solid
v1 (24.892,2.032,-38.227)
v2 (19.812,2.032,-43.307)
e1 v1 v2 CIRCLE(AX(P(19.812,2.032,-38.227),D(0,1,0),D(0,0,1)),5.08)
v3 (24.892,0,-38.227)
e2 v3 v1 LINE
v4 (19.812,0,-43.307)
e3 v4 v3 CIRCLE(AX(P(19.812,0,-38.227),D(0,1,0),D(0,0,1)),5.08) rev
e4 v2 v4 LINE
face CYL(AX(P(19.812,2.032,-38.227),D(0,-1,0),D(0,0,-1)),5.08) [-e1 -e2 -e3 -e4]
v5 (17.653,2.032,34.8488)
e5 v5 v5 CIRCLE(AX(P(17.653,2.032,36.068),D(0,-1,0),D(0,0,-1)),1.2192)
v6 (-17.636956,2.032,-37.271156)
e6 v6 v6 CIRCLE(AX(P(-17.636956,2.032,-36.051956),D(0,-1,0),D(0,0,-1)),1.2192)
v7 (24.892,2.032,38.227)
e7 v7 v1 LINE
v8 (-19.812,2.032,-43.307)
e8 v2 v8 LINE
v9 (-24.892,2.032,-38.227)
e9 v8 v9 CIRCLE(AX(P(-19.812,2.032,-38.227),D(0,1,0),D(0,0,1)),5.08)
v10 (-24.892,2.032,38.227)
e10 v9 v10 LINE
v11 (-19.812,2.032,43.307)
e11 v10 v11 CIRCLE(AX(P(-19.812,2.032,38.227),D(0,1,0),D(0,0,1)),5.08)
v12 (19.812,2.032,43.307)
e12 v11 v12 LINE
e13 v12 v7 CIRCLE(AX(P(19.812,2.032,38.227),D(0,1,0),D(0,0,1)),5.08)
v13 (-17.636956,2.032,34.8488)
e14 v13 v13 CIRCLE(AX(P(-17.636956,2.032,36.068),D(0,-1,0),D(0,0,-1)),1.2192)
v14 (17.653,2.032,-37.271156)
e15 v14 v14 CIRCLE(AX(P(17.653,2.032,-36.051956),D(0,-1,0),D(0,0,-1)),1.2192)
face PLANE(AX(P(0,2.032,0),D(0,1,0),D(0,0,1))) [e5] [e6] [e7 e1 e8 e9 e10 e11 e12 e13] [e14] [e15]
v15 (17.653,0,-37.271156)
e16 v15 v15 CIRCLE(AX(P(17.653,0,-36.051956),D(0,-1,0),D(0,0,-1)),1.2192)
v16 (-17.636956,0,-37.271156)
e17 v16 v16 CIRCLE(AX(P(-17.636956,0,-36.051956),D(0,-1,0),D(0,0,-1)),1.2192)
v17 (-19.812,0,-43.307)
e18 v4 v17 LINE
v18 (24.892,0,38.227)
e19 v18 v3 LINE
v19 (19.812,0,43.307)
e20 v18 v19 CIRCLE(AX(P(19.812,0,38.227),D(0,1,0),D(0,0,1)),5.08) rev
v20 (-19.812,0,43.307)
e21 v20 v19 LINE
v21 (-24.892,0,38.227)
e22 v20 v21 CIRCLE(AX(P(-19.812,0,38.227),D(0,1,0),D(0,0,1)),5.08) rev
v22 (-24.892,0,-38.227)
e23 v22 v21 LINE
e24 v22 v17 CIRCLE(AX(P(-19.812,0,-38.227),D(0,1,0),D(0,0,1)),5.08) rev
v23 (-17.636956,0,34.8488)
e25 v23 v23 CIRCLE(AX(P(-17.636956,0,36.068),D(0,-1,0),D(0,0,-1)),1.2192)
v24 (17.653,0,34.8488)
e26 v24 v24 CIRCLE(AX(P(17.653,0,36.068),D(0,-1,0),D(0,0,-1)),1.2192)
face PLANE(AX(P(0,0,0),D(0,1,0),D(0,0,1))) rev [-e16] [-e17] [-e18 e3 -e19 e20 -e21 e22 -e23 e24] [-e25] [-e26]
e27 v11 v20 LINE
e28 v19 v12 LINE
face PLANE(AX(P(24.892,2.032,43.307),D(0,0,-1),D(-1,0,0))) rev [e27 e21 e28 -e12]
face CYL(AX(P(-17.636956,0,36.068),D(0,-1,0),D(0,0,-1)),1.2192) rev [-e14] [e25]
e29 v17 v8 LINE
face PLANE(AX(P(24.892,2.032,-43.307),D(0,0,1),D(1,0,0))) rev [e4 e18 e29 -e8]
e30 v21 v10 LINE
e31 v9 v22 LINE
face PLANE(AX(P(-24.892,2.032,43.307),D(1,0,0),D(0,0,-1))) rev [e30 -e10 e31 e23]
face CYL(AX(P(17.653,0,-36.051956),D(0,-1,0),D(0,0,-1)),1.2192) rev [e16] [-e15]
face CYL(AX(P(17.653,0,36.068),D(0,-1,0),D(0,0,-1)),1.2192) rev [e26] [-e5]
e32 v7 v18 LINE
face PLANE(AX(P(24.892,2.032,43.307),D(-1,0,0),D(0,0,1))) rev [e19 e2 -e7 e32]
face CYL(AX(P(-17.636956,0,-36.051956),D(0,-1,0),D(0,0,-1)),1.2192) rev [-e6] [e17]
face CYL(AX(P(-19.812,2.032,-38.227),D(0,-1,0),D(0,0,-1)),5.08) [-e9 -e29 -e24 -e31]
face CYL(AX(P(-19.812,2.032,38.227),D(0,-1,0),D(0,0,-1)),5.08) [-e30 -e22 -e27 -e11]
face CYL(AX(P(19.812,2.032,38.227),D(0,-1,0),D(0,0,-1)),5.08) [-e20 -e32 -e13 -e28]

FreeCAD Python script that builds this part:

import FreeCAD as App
import Part
import Sketcher

V = App.Vector
Q = App.Units.Quantity


def edges_at(feature, points):
    """Names of the edges that pass closest to the given points."""
    edges = feature.Shape.Edges
    near = lambda p: min(range(len(edges)), key=lambda i: edges[i].distToShape(Part.Vertex(*p))[0])
    return sorted({f"Edge{near(p) + 1}" for p in points})

doc = App.newDocument("Part")
body = doc.addObject("PartDesign::Body", "Body")

# Sketch on XZ plane
sketch1 = body.newObject("Sketcher::SketchObject", "Sketch")
sketch1.AttachmentSupport = (doc.getObject("XZ_Plane"), [""])
sketch1.MapMode = "FlatFace"
sketch1.addGeometry([
    Part.LineSegment(V(-25, -43, 0), V(-25, 43, 0)),
    Part.LineSegment(V(-25, 43, 0), V(25, 43, 0)),
    Part.LineSegment(V(25, 43, 0), V(25, -43, 0)),
    Part.LineSegment(V(25, -43, 0), V(-25, -43, 0)),
], False)
sketch1.addConstraint([
    Sketcher.Constraint("Coincident", 0, 2, 1, 1),
    Sketcher.Constraint("Coincident", 1, 2, 2, 1),
    Sketcher.Constraint("Coincident", 2, 2, 3, 1),
    Sketcher.Constraint("Coincident", 3, 2, 0, 1),
    Sketcher.Constraint("Vertical", 0),
    Sketcher.Constraint("Horizontal", 1),
    Sketcher.Constraint("Vertical", 2),
    Sketcher.Constraint("Horizontal", 3),
    Sketcher.Constraint("Symmetric", 0, 2, 2, 2, -1, 1),
    Sketcher.Constraint("DistanceX", 1, 1, 1, 2, Q("1.96 in")),
    Sketcher.Constraint("DistanceY", 0, 1, 0, 2, Q("3.41 in")),
])
pad1 = body.newObject("PartDesign::Pad", "Pad")
pad1.Profile = sketch1
pad1.Length = Q("0.08 in")
pad1.Reversed = True
doc.recompute()

fillet = body.newObject("PartDesign::Fillet", "Fillet")
fillet.Base = (pad1, edges_at(pad1, [
    (-24.892, 1.016, -43.307),
    (24.892, 1.016, -43.307),
    (24.892, 1.016, 43.307),
    (-24.892, 1.016, 43.307),
]))
fillet.Radius = Q("0.2 in")

# Sketch on XZ plane
sketch2 = body.newObject("Sketcher::SketchObject", "Sketch001")
sketch2.AttachmentSupport = (doc.getObject("XZ_Plane"), [""])
sketch2.MapMode = "FlatFace"
sketch2.addGeometry([
    Part.Circle(V(17.7, -36.1, 0), V(0, 0, 1), 1.2),
    Part.Circle(V(-17.6, -36.1, 0), V(0, 0, 1), 1.2),
    Part.Circle(V(17.7, 36.1, 0), V(0, 0, 1), 1.2),
    Part.Circle(V(-17.6, 36.1, 0), V(0, 0, 1), 1.2),
], False)
sketch2.addConstraint([
    Sketcher.Constraint("Equal", 0, 1),
    Sketcher.Constraint("Equal", 1, 2),
    Sketcher.Constraint("Equal", 2, 3),
    Sketcher.Constraint("Horizontal", 0, 3, 1, 3),
    Sketcher.Constraint("Horizontal", 2, 3, 3, 3),
    Sketcher.Constraint("Vertical", 0, 3, 2, 3),
    Sketcher.Constraint("Vertical", 1, 3, 3, 3),
    Sketcher.Constraint("Diameter", 0, Q("0.096 in")),
    Sketcher.Constraint("DistanceY", -1, 1, 2, 3, Q("1.42 in")),
    Sketcher.Constraint("DistanceX", -1, 1, 0, 3, Q("0.695 in")),
    Sketcher.Constraint("DistanceY", 0, 3, -1, 1, 36.051956),
    Sketcher.Constraint("DistanceX", 1, 3, -1, 1, 17.636956),
])
doc.recompute()
hole = body.newObject("PartDesign::Hole", "Hole")
hole.Profile = sketch2
hole.ThreadType = "None"
hole.Diameter = Q("0.096 in")
hole.DepthType = "ThroughAll"

doc.recompute()
